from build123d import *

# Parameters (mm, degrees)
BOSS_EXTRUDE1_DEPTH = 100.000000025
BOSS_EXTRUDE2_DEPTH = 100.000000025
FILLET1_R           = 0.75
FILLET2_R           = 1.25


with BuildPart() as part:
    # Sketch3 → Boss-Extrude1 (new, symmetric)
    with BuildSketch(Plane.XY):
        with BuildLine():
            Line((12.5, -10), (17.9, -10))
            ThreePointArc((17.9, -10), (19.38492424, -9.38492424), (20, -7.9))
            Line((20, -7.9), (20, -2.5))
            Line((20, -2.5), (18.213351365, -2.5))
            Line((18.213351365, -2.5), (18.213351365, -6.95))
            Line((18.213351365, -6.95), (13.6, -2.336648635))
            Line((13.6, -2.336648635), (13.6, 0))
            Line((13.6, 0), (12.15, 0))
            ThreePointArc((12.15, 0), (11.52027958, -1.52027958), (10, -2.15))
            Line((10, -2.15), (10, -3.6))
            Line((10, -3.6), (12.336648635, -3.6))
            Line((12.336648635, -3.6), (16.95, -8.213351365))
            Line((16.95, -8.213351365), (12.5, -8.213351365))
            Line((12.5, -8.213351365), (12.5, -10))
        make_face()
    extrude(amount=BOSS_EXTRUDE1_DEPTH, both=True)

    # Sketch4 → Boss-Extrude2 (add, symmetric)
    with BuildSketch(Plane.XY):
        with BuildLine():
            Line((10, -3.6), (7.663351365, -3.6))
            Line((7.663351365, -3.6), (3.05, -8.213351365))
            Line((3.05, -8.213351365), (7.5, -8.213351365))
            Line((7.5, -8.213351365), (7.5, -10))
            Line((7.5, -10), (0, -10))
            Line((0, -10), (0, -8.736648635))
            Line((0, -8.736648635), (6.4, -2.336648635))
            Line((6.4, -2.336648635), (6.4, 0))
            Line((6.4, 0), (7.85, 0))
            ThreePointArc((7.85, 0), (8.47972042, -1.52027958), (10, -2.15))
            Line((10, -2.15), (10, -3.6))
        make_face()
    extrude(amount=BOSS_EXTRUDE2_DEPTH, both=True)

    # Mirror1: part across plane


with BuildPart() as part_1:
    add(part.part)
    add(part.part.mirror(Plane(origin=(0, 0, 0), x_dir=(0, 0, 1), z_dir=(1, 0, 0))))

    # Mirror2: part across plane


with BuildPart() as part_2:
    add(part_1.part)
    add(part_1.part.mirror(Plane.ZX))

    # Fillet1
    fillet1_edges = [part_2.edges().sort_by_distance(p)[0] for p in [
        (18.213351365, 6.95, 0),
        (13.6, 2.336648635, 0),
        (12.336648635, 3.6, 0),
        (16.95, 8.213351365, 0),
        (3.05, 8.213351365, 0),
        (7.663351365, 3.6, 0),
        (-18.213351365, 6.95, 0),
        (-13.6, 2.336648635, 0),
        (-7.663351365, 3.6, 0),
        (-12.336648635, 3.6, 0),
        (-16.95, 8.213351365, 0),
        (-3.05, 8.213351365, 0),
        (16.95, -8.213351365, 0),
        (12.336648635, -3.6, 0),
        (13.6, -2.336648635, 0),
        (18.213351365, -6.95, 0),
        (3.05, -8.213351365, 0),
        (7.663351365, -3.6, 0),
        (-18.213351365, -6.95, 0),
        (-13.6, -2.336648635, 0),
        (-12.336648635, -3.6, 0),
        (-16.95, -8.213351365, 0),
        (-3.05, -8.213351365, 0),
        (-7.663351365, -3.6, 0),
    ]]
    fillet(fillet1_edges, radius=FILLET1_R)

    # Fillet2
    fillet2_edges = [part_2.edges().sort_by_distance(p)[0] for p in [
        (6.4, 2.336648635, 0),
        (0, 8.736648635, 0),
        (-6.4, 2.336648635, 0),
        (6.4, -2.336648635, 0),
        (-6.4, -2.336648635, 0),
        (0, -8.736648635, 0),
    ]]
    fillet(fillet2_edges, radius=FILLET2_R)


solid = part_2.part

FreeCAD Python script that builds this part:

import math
import FreeCAD as App
import Part
import Sketcher

V = App.Vector
Q = App.Units.Quantity


def edges_at(feature, points):
    """Names of the edges that pass closest to the given points."""
    edges = feature.Shape.Edges
    near = lambda p: min(range(len(edges)), key=lambda i: edges[i].distToShape(Part.Vertex(*p))[0])
    return sorted({f"Edge{near(p) + 1}" for p in points})

doc = App.newDocument("Part")
params = doc.addObject("Spreadsheet::Sheet", "Params")
for row, (alias, value) in enumerate([
    ("sketch1_radius", "2.1 mm"),
    ("sketch1_radius2", "2.15 mm"),
    ("sketch1_width", "5.4 mm"),
    ("sketch1_width2", "1.45 mm"),
    ("sketch1_width3", "4.45 mm"),
    ("pad1_length", "200 mm"),
    ("sketch2_radius", "2.15 mm"),
    ("sketch2_width", "7.5 mm"),
    ("sketch2_width2", "1.45 mm"),
    ("sketch2_width3", "4.45 mm"),
    ("pad2_length", "200 mm"),
    ("fillet_radius", "0.75 mm"),
    ("fillet2_radius", "1.25 mm"),
], start=1):
    params.set(f"A{row}", alias)
    params.set(f"B{row}", "=" + value)
    params.setAlias(f"B{row}", alias)

body = doc.addObject("PartDesign::Body", "Body")

sketch1 = body.newObject("Sketcher::SketchObject", "Sketch")
sketch1.AttachmentSupport = (doc.getObject("XY_Plane"), [""])
sketch1.MapMode = "FlatFace"
sketch1.addGeometry([
    Part.LineSegment(V(12.5, -10, 0), V(17.9, -10, 0)),
    Part.ArcOfCircle(Part.Circle(V(17.9, -7.9, 0), V(0, 0, 1), 2.1), math.radians(-90), math.radians(0)),
    Part.LineSegment(V(20, -7.9, 0), V(20, -2.5, 0)),
    Part.LineSegment(V(20, -2.5, 0), V(18.2, -2.5, 0)),
    Part.LineSegment(V(18.2, -2.5, 0), V(18.2, -7, 0)),
    Part.LineSegment(V(18.2, -7, 0), V(13.6, -2.3, 0)),
    Part.LineSegment(V(13.6, -2.3, 0), V(13.6, 0, 0)),
    Part.LineSegment(V(13.6, 0, 0), V(12.2, 0, 0)),
    Part.ArcOfCircle(Part.Circle(V(10, 0, 0), V(0, 0, 1), 2.1), math.radians(-90), math.radians(0)),
    Part.LineSegment(V(10, -2.1, 0), V(10, -3.6, 0)),
    Part.LineSegment(V(10, -3.6, 0), V(12.3, -3.6, 0)),
    Part.LineSegment(V(12.3, -3.6, 0), V(16.9, -8.2, 0)),
    Part.LineSegment(V(16.9, -8.2, 0), V(12.5, -8.2, 0)),
    Part.LineSegment(V(12.5, -8.2, 0), V(12.5, -10, 0)),
], False)
sketch1.addConstraint([
    Sketcher.Constraint("Tangent", 0, 2, 1, 1),
    Sketcher.Constraint("Tangent", 1, 2, 2, 1),
    Sketcher.Constraint("Coincident", 2, 2, 3, 1),
    Sketcher.Constraint("Coincident", 3, 2, 4, 1),
    Sketcher.Constraint("Coincident", 4, 2, 5, 1),
    Sketcher.Constraint("Coincident", 5, 2, 6, 1),
    Sketcher.Constraint("Coincident", 6, 2, 7, 1),
    Sketcher.Constraint("Coincident", 7, 2, 8, 2),
    Sketcher.Constraint("Coincident", 8, 1, 9, 1),
    Sketcher.Constraint("Coincident", 9, 2, 10, 1),
    Sketcher.Constraint("Coincident", 10, 2, 11, 1),
    Sketcher.Constraint("Coincident", 11, 2, 12, 1),
    Sketcher.Constraint("Coincident", 12, 2, 13, 1),
    Sketcher.Constraint("Coincident", 13, 2, 0, 1),
    Sketcher.Constraint("Horizontal", 0),
    Sketcher.Constraint("Vertical", 2),
    Sketcher.Constraint("Horizontal", 3),
    Sketcher.Constraint("Vertical", 4),
    Sketcher.Constraint("Vertical", 6),
    Sketcher.Constraint("Horizontal", 7),
    Sketcher.Constraint("Vertical", 9),
    Sketcher.Constraint("Horizontal", 10),
    Sketcher.Constraint("Horizontal", 12),
    Sketcher.Constraint("Vertical", 13),
    Sketcher.Constraint("PointOnObject", 8, 3, -1),
    Sketcher.Constraint("PointOnObject", 6, 2, -1),
    Sketcher.Constraint("Parallel", 5, 11),
    Sketcher.Constraint("Equal", 0, 2),
    Sketcher.Constraint("Equal", 12, 4),
    Sketcher.Constraint("Equal", 10, 6),
    Sketcher.Constraint("Equal", 7, 9),
    Sketcher.Constraint("Equal", 3, 13),
    Sketcher.Constraint("Equal", 5, 11),
    Sketcher.Constraint("Radius", 1, Q("2.1 mm")),
    Sketcher.Constraint("Angle", 5, Q("135 deg")),
    Sketcher.Constraint("Radius", 8, Q("2.15 mm")),
    Sketcher.Constraint("DistanceX", 0, 1, 0, 2, Q("5.4 mm")),
    Sketcher.Constraint("DistanceX", -1, 1, 8, 3, Q("10 mm")),
    Sketcher.Constraint("DistanceY", 0, 2, -1, 1, Q("10 mm")),
    Sketcher.Constraint("DistanceX", 7, 2, 7, 1, Q("1.45 mm")),
    Sketcher.Constraint("DistanceX", 12, 2, 12, 1, Q("4.45 mm")),
    Sketcher.Constraint("DistanceX", 3, 2, 3, 1, Q("1.786649 mm")),
])
sketch1.setExpression("Constraints[33]", "Params.sketch1_radius")
sketch1.setExpression("Constraints[35]", "Params.sketch1_radius2")
sketch1.setExpression("Constraints[36]", "Params.sketch1_width")
sketch1.setExpression("Constraints[39]", "Params.sketch1_width2")
sketch1.setExpression("Constraints[40]", "Params.sketch1_width3")
pad1 = body.newObject("PartDesign::Pad", "Pad")
pad1.Profile = sketch1
pad1.setExpression("Length", "Params.pad1_length")
pad1.Midplane = True

sketch2 = body.newObject("Sketcher::SketchObject", "Sketch001")
sketch2.AttachmentSupport = (doc.getObject("XY_Plane"), [""])
sketch2.MapMode = "FlatFace"
sketch2.addGeometry([
    Part.LineSegment(V(7.7, -3.6, 0), V(10, -3.6, 0)),
    Part.LineSegment(V(10, -3.6, 0), V(10, -2.1, 0)),
    Part.ArcOfCircle(Part.Circle(V(10, 0, 0), V(0, 0, 1), 2.1), math.radians(180), math.radians(270)),
    Part.LineSegment(V(7.8, 0, 0), V(6.4, 0, 0)),
    Part.LineSegment(V(6.4, 0, 0), V(6.4, -2.3, 0)),
    Part.LineSegment(V(6.4, -2.3, 0), V(0, -8.7, 0)),
    Part.LineSegment(V(0, -8.7, 0), V(0, -10, 0)),
    Part.LineSegment(V(0, -10, 0), V(7.5, -10, 0)),
    Part.LineSegment(V(7.5, -10, 0), V(7.5, -8.2, 0)),
    Part.LineSegment(V(7.5, -8.2, 0), V(3, -8.2, 0)),
    Part.LineSegment(V(3, -8.2, 0), V(7.7, -3.6, 0)),
], False)
sketch2.addConstraint([
    Sketcher.Constraint("Coincident", 0, 2, 1, 1),
    Sketcher.Constraint("Coincident", 1, 2, 2, 2),
    Sketcher.Constraint("Coincident", 2, 1, 3, 1),
    Sketcher.Constraint("Coincident", 3, 2, 4, 1),
    Sketcher.Constraint("Coincident", 4, 2, 5, 1),
    Sketcher.Constraint("Coincident", 5, 2, 6, 1),
    Sketcher.Constraint("Coincident", 6, 2, 7, 1),
    Sketcher.Constraint("Coincident", 7, 2, 8, 1),
    Sketcher.Constraint("Coincident", 8, 2, 9, 1),
    Sketcher.Constraint("Coincident", 9, 2, 10, 1),
    Sketcher.Constraint("Coincident", 10, 2, 0, 1),
    Sketcher.Constraint("Horizontal", 0),
    Sketcher.Constraint("Vertical", 1),
    Sketcher.Constraint("Horizontal", 3),
    Sketcher.Constraint("Vertical", 4),
    Sketcher.Constraint("Vertical", 6),
    Sketcher.Constraint("Horizontal", 7),
    Sketcher.Constraint("Vertical", 8),
    Sketcher.Constraint("Horizontal", 9),
    Sketcher.Constraint("PointOnObject", 2, 3, -1),
    Sketcher.Constraint("PointOnObject", 2, 1, -1),
    Sketcher.Constraint("PointOnObject", 5, 2, -2),
    Sketcher.Constraint("Parallel", 5, 10),
    Sketcher.Constraint("Vertical", 2, 3, 0, 2),
    Sketcher.Constraint("Equal", 3, 1),
    Sketcher.Constraint("Equal", 0, 4),
    Sketcher.Constraint("Angle", 5, Q("-135 deg")),
    Sketcher.Constraint("Radius", 2, Q("2.15 mm")),
    Sketcher.Constraint("DistanceX", 7, 1, 7, 2, Q("7.5 mm")),
    Sketcher.Constraint("DistanceX", -1, 1, 2, 3, Q("10 mm")),
    Sketcher.Constraint("DistanceY", 6, 2, -1, 1, Q("10 mm")),
    Sketcher.Constraint("DistanceX", 3, 2, 3, 1, Q("1.45 mm")),
    Sketcher.Constraint("DistanceX", 9, 2, 9, 1, Q("4.45 mm")),
    Sketcher.Constraint("DistanceX", 0, 1, 0, 2, Q("2.336649 mm")),
])
sketch2.setExpression("Constraints[27]", "Params.sketch2_radius")
sketch2.setExpression("Constraints[28]", "Params.sketch2_width")
sketch2.setExpression("Constraints[31]", "Params.sketch2_width2")
sketch2.setExpression("Constraints[32]", "Params.sketch2_width3")
pad2 = body.newObject("PartDesign::Pad", "Pad001")
pad2.Profile = sketch2
pad2.setExpression("Length", "Params.pad2_length")
pad2.Midplane = True
body2 = doc.addObject("PartDesign::Body", "Body001")
doc.recompute()

body2.BaseFeature = body
doc.recompute()

mirroring = doc.addObject("Part::Mirroring", "Mirroring")
mirroring.Source = body
mirroring.Base = V(0, 0, 0)
mirroring.Normal = V(1, 0, 0)
body3 = doc.addObject("PartDesign::Body", "Body002")
body3.BaseFeature = mirroring
boolean = body2.newObject("PartDesign::Boolean", "Boolean")
boolean.Type = "Fuse"
boolean.addObjects([body3])
doc.recompute()
body4 = doc.addObject("PartDesign::Body", "Body003")
doc.recompute()

body4.BaseFeature = body2
doc.recompute()

mirroring2 = doc.addObject("Part::Mirroring", "Mirroring001")
mirroring2.Source = body2
mirroring2.Base = V(0, 0, 0)
mirroring2.Normal = V(0, 1, 0)
body5 = doc.addObject("PartDesign::Body", "Body004")
body5.BaseFeature = mirroring2
boolean2 = body4.newObject("PartDesign::Boolean", "Boolean001")
boolean2.Type = "Fuse"
boolean2.addObjects([body5])
doc.recompute()

fillet = body4.newObject("PartDesign::Fillet", "Fillet")
fillet.Base = (boolean2, edges_at(boolean2, [
    (18.213, 6.95, 0),
    (13.6, 2.337, 0),
    (12.337, 3.6, 0),
    (16.95, 8.213, 0),
    (3.05, 8.213, 0),
    (7.663, 3.6, 0),
    (-18.213, 6.95, 0),
    (-13.6, 2.337, 0),
    (-7.663, 3.6, 0),
    (-12.337, 3.6, 0),
    (-16.95, 8.213, 0),
    (-3.05, 8.213, 0),
    (16.95, -8.213, 0),
    (12.337, -3.6, 0),
    (13.6, -2.337, 0),
    (18.213, -6.95, 0),
    (3.05, -8.213, 0),
    (7.663, -3.6, 0),
    (-18.213, -6.95, 0),
    (-13.6, -2.337, 0),
    (-12.337, -3.6, 0),
    (-16.95, -8.213, 0),
    (-3.05, -8.213, 0),
    (-7.663, -3.6, 0),
]))
fillet.setExpression("Radius", "Params.fillet_radius")
doc.recompute()

fillet2 = body4.newObject("PartDesign::Fillet", "Fillet001")
fillet2.Base = (fillet, edges_at(fillet, [
    (6.4, 2.337, 0),
    (0, 8.737, 0),
    (-6.4, 2.337, 0),
    (6.4, -2.337, 0),
    (-6.4, -2.337, 0),
    (0, -8.737, 0),
]))
fillet2.setExpression("Radius", "Params.fillet2_radius")
mirroring.Visibility = False
mirroring2.Visibility = False

doc.recompute()
